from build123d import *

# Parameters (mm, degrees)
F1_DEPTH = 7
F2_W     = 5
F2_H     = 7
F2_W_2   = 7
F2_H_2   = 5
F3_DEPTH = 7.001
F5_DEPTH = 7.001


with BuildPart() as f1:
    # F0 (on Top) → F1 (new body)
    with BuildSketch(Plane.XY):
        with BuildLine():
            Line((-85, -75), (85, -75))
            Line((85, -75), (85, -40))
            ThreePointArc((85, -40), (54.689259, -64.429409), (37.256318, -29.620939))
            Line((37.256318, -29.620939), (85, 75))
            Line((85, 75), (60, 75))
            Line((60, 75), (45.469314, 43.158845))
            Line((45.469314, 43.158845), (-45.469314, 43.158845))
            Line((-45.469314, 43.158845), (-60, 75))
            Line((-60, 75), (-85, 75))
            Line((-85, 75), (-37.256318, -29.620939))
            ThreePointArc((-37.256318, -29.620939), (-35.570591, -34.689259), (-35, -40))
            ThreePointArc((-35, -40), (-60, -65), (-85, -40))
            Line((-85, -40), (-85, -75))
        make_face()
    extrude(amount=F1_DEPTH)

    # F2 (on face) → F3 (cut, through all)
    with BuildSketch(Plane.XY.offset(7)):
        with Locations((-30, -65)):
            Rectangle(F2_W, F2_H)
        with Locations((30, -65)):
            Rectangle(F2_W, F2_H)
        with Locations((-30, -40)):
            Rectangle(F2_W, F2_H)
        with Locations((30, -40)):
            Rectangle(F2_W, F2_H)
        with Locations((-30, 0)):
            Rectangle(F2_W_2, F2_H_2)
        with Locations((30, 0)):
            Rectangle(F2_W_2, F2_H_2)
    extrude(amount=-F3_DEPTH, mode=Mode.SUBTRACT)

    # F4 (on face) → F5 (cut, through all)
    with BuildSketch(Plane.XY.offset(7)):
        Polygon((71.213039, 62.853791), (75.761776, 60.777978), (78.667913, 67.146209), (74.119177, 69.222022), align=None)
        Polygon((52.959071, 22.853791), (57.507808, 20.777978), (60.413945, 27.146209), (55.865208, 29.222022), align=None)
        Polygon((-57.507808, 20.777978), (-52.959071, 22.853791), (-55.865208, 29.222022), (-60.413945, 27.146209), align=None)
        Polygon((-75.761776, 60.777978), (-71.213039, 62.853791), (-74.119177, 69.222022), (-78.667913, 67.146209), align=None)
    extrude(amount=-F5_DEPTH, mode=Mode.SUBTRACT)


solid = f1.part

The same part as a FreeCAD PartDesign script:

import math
import FreeCAD as App
import Part
import Sketcher
from FreeCAD import Vector
Q = App.Units.Quantity

doc = App.newDocument("Part")
body = doc.addObject("PartDesign::Body", "Body")

# Sketch on XY plane
sketch1 = body.newObject("Sketcher::SketchObject", "Sketch")
sketch1.AttachmentSupport = (doc.getObject("XY_Plane"), [""])
sketch1.MapMode = "FlatFace"
sketch1.addGeometry([
    Part.LineSegment(Vector(-85, -75, 0), Vector(85, -75, 0)),  # 0
    Part.LineSegment(Vector(85, -75, 0), Vector(85, -40, 0)),  # 1
    Part.ArcOfCircle(Part.Circle(Vector(60, -40, 0), Vector(0, 0, 1), 25), math.radians(155.470453), math.radians(360)),  # 2
    Part.LineSegment(Vector(37.256318, -29.620939, 0), Vector(85, 75, 0)),  # 3
    Part.LineSegment(Vector(85, 75, 0), Vector(60, 75, 0)),  # 4
    Part.LineSegment(Vector(60, 75, 0), Vector(45.469314, 43.158845, 0)),  # 5
    Part.LineSegment(Vector(45.469314, 43.158845, 0), Vector(-45.469314, 43.158845, 0)),  # 6
    Part.LineSegment(Vector(-45.469314, 43.158845, 0), Vector(-60, 75, 0)),  # 7
    Part.LineSegment(Vector(-60, 75, 0), Vector(-85, 75, 0)),  # 8
    Part.LineSegment(Vector(-85, 75, 0), Vector(-37.256318, -29.620939, 0)),  # 9
    Part.ArcOfCircle(Part.Circle(Vector(-59.999996, -40, 0), Vector(0, 0, 1), 24.999996), math.radians(0), math.radians(24.529551)),  # 10
    Part.ArcOfCircle(Part.Circle(Vector(-60, -40, 0), Vector(0, 0, 1), 25), math.radians(180), math.radians(360)),  # 11
    Part.LineSegment(Vector(-85, -40, 0), Vector(-85, -75, 0)),  # 12
], False)
sketch1.addConstraint([
    Sketcher.Constraint("Coincident", 0, 2, 1, 1),
    Sketcher.Constraint("Tangent", 1, 2, 2, 2),
    Sketcher.Constraint("Tangent", 2, 1, 3, 1),
    Sketcher.Constraint("Coincident", 3, 2, 4, 1),
    Sketcher.Constraint("Coincident", 4, 2, 5, 1),
    Sketcher.Constraint("Coincident", 5, 2, 6, 1),
    Sketcher.Constraint("Coincident", 6, 2, 7, 1),
    Sketcher.Constraint("Coincident", 7, 2, 8, 1),
    Sketcher.Constraint("Coincident", 8, 2, 9, 1),
    Sketcher.Constraint("Tangent", 9, 2, 10, 2),
    Sketcher.Constraint("Tangent", 10, 1, 11, 2),
    Sketcher.Constraint("Tangent", 11, 1, 12, 1),
    Sketcher.Constraint("Coincident", 12, 2, 0, 1),
    Sketcher.Constraint("Horizontal", 0),
    Sketcher.Constraint("Vertical", 1),
    Sketcher.Constraint("Horizontal", 4),
    Sketcher.Constraint("Horizontal", 6),
    Sketcher.Constraint("Horizontal", 8),
    Sketcher.Constraint("Vertical", 12),
    Sketcher.Constraint("Equal", 2, 11),
    Sketcher.Constraint("Symmetric", 0, 2, 8, 2, -1, 1),
    Sketcher.Constraint("Symmetric", 3, 2, 12, 2, -1, 1),
    Sketcher.Constraint("Symmetric", 2, 3, 10, 3, -2),
    Sketcher.Constraint("Parallel", 3, 5),
    Sketcher.Constraint("Parallel", 7, 9),
    Sketcher.Constraint("Horizontal", 2, 1, 9, 2),
    Sketcher.Constraint("Horizontal", 1, 2, 10, 1),
    Sketcher.Constraint("Vertical", 2, 3, 4, 2),
    Sketcher.Constraint("Vertical", 11, 3, 7, 2),
    Sketcher.Constraint("Radius", 2, Q("25 mm")),
    Sketcher.Constraint("DistanceX", 0, 1, 0, 2, Q("170 mm")),
    Sketcher.Constraint("DistanceY", 1, 1, 1, 2, Q("35 mm")),
    Sketcher.Constraint("Distance", 3, Q("115 mm")),
    Sketcher.Constraint("Distance", 5, Q("35 mm")),
])
pad1 = body.newObject("PartDesign::Pad", "Pad")
pad1.Profile = sketch1
pad1.Length = 7

# Sketch on XY plane
sketch2 = body.newObject("Sketcher::SketchObject", "Sketch001")
sketch2.AttachmentSupport = (doc.getObject("XY_Plane"), [""])
sketch2.MapMode = "FlatFace"
sketch2.AttachmentOffset = App.Placement(Vector(0, 0, 7), App.Rotation())
sketch2.addGeometry([
    Part.LineSegment(Vector(-32.5, -61.5, 0), Vector(-32.5, -68.5, 0)),  # 0
    Part.LineSegment(Vector(-32.5, -68.5, 0), Vector(-27.5, -68.5, 0)),  # 1
    Part.LineSegment(Vector(-27.5, -68.5, 0), Vector(-27.5, -61.5, 0)),  # 2
    Part.LineSegment(Vector(-27.5, -61.5, 0), Vector(-32.5, -61.5, 0)),  # 3
    Part.LineSegment(Vector(27.5, -61.5, 0), Vector(27.5, -68.5, 0)),  # 4
    Part.LineSegment(Vector(27.5, -68.5, 0), Vector(32.5, -68.5, 0)),  # 5
    Part.LineSegment(Vector(32.5, -68.5, 0), Vector(32.5, -61.5, 0)),  # 6
    Part.LineSegment(Vector(32.5, -61.5, 0), Vector(27.5, -61.5, 0)),  # 7
    Part.LineSegment(Vector(-32.5, -36.5, 0), Vector(-32.5, -43.5, 0)),  # 8
    Part.LineSegment(Vector(-32.5, -43.5, 0), Vector(-27.5, -43.5, 0)),  # 9
    Part.LineSegment(Vector(-27.5, -43.5, 0), Vector(-27.5, -36.5, 0)),  # 10
    Part.LineSegment(Vector(-27.5, -36.5, 0), Vector(-32.5, -36.5, 0)),  # 11
    Part.LineSegment(Vector(27.5, -36.5, 0), Vector(27.5, -43.5, 0)),  # 12
    Part.LineSegment(Vector(27.5, -43.5, 0), Vector(32.5, -43.5, 0)),  # 13
    Part.LineSegment(Vector(32.5, -43.5, 0), Vector(32.5, -36.5, 0)),  # 14
    Part.LineSegment(Vector(32.5, -36.5, 0), Vector(27.5, -36.5, 0)),  # 15
    Part.LineSegment(Vector(-33.5, 2.5, 0), Vector(-33.5, -2.5, 0)),  # 16
    Part.LineSegment(Vector(-33.5, -2.5, 0), Vector(-26.5, -2.5, 0)),  # 17
    Part.LineSegment(Vector(-26.5, -2.5, 0), Vector(-26.5, 2.5, 0)),  # 18
    Part.LineSegment(Vector(-26.5, 2.5, 0), Vector(-33.5, 2.5, 0)),  # 19
    Part.LineSegment(Vector(26.5, 2.5, 0), Vector(26.5, -2.5, 0)),  # 20
    Part.LineSegment(Vector(26.5, -2.5, 0), Vector(33.5, -2.5, 0)),  # 21
    Part.LineSegment(Vector(33.5, -2.5, 0), Vector(33.5, 2.5, 0)),  # 22
    Part.LineSegment(Vector(33.5, 2.5, 0), Vector(26.5, 2.5, 0)),  # 23
], False)
sketch2.addConstraint([
    Sketcher.Constraint("Coincident", 0, 2, 1, 1),
    Sketcher.Constraint("Coincident", 1, 2, 2, 1),
    Sketcher.Constraint("Coincident", 2, 2, 3, 1),
    Sketcher.Constraint("Coincident", 3, 2, 0, 1),
    Sketcher.Constraint("Coincident", 4, 2, 5, 1),
    Sketcher.Constraint("Coincident", 5, 2, 6, 1),
    Sketcher.Constraint("Coincident", 6, 2, 7, 1),
    Sketcher.Constraint("Coincident", 7, 2, 4, 1),
    Sketcher.Constraint("Coincident", 8, 2, 9, 1),
    Sketcher.Constraint("Coincident", 9, 2, 10, 1),
    Sketcher.Constraint("Coincident", 10, 2, 11, 1),
    Sketcher.Constraint("Coincident", 11, 2, 8, 1),
    Sketcher.Constraint("Coincident", 12, 2, 13, 1),
    Sketcher.Constraint("Coincident", 13, 2, 14, 1),
    Sketcher.Constraint("Coincident", 14, 2, 15, 1),
    Sketcher.Constraint("Coincident", 15, 2, 12, 1),
    Sketcher.Constraint("Coincident", 16, 2, 17, 1),
    Sketcher.Constraint("Coincident", 17, 2, 18, 1),
    Sketcher.Constraint("Coincident", 18, 2, 19, 1),
    Sketcher.Constraint("Coincident", 19, 2, 16, 1),
    Sketcher.Constraint("Coincident", 20, 2, 21, 1),
    Sketcher.Constraint("Coincident", 21, 2, 22, 1),
    Sketcher.Constraint("Coincident", 22, 2, 23, 1),
    Sketcher.Constraint("Coincident", 23, 2, 20, 1),
    Sketcher.Constraint("Vertical", 0),
    Sketcher.Constraint("Horizontal", 1),
    Sketcher.Constraint("Vertical", 2),
    Sketcher.Constraint("Horizontal", 3),
    Sketcher.Constraint("Vertical", 4),
    Sketcher.Constraint("Horizontal", 5),
    Sketcher.Constraint("Vertical", 6),
    Sketcher.Constraint("Horizontal", 7),
    Sketcher.Constraint("Vertical", 8),
    Sketcher.Constraint("Horizontal", 9),
    Sketcher.Constraint("Vertical", 10),
    Sketcher.Constraint("Horizontal", 11),
    Sketcher.Constraint("Vertical", 12),
    Sketcher.Constraint("Horizontal", 13),
    Sketcher.Constraint("Vertical", 14),
    Sketcher.Constraint("Horizontal", 15),
    Sketcher.Constraint("Vertical", 16),
    Sketcher.Constraint("Horizontal", 17),
    Sketcher.Constraint("Vertical", 18),
    Sketcher.Constraint("Horizontal", 19),
    Sketcher.Constraint("Vertical", 20),
    Sketcher.Constraint("Horizontal", 21),
    Sketcher.Constraint("Vertical", 22),
    Sketcher.Constraint("Horizontal", 23),
    Sketcher.Constraint("Symmetric", 18, 2, 20, 2, -1, 1),
    Sketcher.Constraint("Symmetric", 16, 2, 22, 2, -1, 1),
    Sketcher.Constraint("Symmetric", 1, 2, 4, 2, -2),
    Sketcher.Constraint("Symmetric", 3, 2, 6, 2, -2),
    Sketcher.Constraint("Symmetric", 9, 2, 12, 2, -2),
    Sketcher.Constraint("Symmetric", 11, 2, 14, 2, -2),
    Sketcher.Constraint("Horizontal", 17, 2, 20, 2),
    Sketcher.Constraint("Vertical", 3, 2, 8, 2),
    Sketcher.Constraint("Vertical", 2, 2, 9, 2),
    Sketcher.Constraint("Equal", 23, 0),
    Sketcher.Constraint("Equal", 6, 8),
    Sketcher.Constraint("Equal", 15, 16),
    Sketcher.Constraint("DistanceX", 1, 1, 1, 2, Q("5 mm")),
    Sketcher.Constraint("DistanceX", 17, 1, 17, 2, Q("7 mm")),
    Sketcher.Constraint("DistanceX", 1, 2, 4, 2, Q("55 mm")),
    Sketcher.Constraint("DistanceY", 3, 2, 8, 2, Q("18 mm")),
    Sketcher.Constraint("DistanceX", 16, 2, 11, 2, Q("1 mm")),
    Sketcher.Constraint("DistanceY", 11, 2, 16, 2, Q("34 mm")),
])
pocket1 = body.newObject("PartDesign::Pocket", "Pocket")
pocket1.Profile = sketch2
pocket1.Type = "ThroughAll"

# Sketch on XY plane
sketch3 = body.newObject("Sketcher::SketchObject", "Sketch002")
sketch3.AttachmentSupport = (doc.getObject("XY_Plane"), [""])
sketch3.MapMode = "FlatFace"
sketch3.AttachmentOffset = App.Placement(Vector(0, 0, 7), App.Rotation())
sketch3.addGeometry([
    Part.LineSegment(Vector(71.213039, 62.853791, 0), Vector(75.761776, 60.777978, 0)),  # 0
    Part.LineSegment(Vector(75.761776, 60.777978, 0), Vector(78.667913, 67.146209, 0)),  # 1
    Part.LineSegment(Vector(78.667913, 67.146209, 0), Vector(74.119177, 69.222022, 0)),  # 2
    Part.LineSegment(Vector(74.119177, 69.222022, 0), Vector(71.213039, 62.853791, 0)),  # 3
    Part.LineSegment(Vector(52.959071, 22.853791, 0), Vector(57.507808, 20.777978, 0)),  # 4
    Part.LineSegment(Vector(57.507808, 20.777978, 0), Vector(60.413945, 27.146209, 0)),  # 5
    Part.LineSegment(Vector(60.413945, 27.146209, 0), Vector(55.865208, 29.222022, 0)),  # 6
    Part.LineSegment(Vector(55.865208, 29.222022, 0), Vector(52.959071, 22.853791, 0)),  # 7
    Part.LineSegment(Vector(-57.507808, 20.777978, 0), Vector(-52.959071, 22.853791, 0)),  # 8
    Part.LineSegment(Vector(-52.959071, 22.853791, 0), Vector(-55.865208, 29.222022, 0)),  # 9
    Part.LineSegment(Vector(-55.865208, 29.222022, 0), Vector(-60.413945, 27.146209, 0)),  # 10
    Part.LineSegment(Vector(-60.413945, 27.146209, 0), Vector(-57.507808, 20.777978, 0)),  # 11
    Part.LineSegment(Vector(-75.761776, 60.777978, 0), Vector(-71.213039, 62.853791, 0)),  # 12
    Part.LineSegment(Vector(-71.213039, 62.853791, 0), Vector(-74.119177, 69.222022, 0)),  # 13
    Part.LineSegment(Vector(-74.119177, 69.222022, 0), Vector(-78.667913, 67.146209, 0)),  # 14
    Part.LineSegment(Vector(-78.667913, 67.146209, 0), Vector(-75.761776, 60.777978, 0)),  # 15
], False)
sketch3.addConstraint([
    Sketcher.Constraint("Coincident", 0, 2, 1, 1),
    Sketcher.Constraint("Coincident", 1, 2, 2, 1),
    Sketcher.Constraint("Coincident", 2, 2, 3, 1),
    Sketcher.Constraint("Coincident", 3, 2, 0, 1),
    Sketcher.Constraint("Coincident", 4, 2, 5, 1),
    Sketcher.Constraint("Coincident", 5, 2, 6, 1),
    Sketcher.Constraint("Coincident", 6, 2, 7, 1),
    Sketcher.Constraint("Coincident", 7, 2, 4, 1),
    Sketcher.Constraint("Coincident", 8, 2, 9, 1),
    Sketcher.Constraint("Coincident", 9, 2, 10, 1),
    Sketcher.Constraint("Coincident", 10, 2, 11, 1),
    Sketcher.Constraint("Coincident", 11, 2, 8, 1),
    Sketcher.Constraint("Coincident", 12, 2, 13, 1),
    Sketcher.Constraint("Coincident", 13, 2, 14, 1),
    Sketcher.Constraint("Coincident", 14, 2, 15, 1),
    Sketcher.Constraint("Coincident", 15, 2, 12, 1),
    Sketcher.Constraint("Symmetric", 7, 2, 8, 2, -2),
    Sketcher.Constraint("Symmetric", 6, 2, 9, 2, -2),
    Sketcher.Constraint("Symmetric", 5, 2, 10, 2, -2),
    Sketcher.Constraint("Symmetric", 4, 2, 11, 2, -2),
    Sketcher.Constraint("Symmetric", 3, 2, 12, 2, -2),
    Sketcher.Constraint("Symmetric", 2, 2, 13, 2, -2),
    Sketcher.Constraint("Symmetric", 1, 2, 14, 2, -2),
    Sketcher.Constraint("Symmetric", 0, 2, 15, 2, -2),
    Sketcher.Constraint("Perpendicular", 0, 1),
    Sketcher.Constraint("Perpendicular", 1, 2),
    Sketcher.Constraint("Perpendicular", 2, 3),
    Sketcher.Constraint("Perpendicular", 3, 4),
    Sketcher.Constraint("Perpendicular", 4, 5),
    Sketcher.Constraint("Perpendicular", 5, 6),
    Sketcher.Constraint("Perpendicular", 6, 7),
    Sketcher.Constraint("Equal", 2, 4),
    Sketcher.Constraint("Equal", 3, 5),
    Sketcher.Constraint("Distance", 0, Q("5.000001 mm")),
    Sketcher.Constraint("Distance", 1, Q("7 mm")),
    Sketcher.Constraint("DistanceY", 4, 2, 0, 2, Q("40 mm")),
    Sketcher.Constraint("DistanceX", 2, 2, 0, 2, Q("1.642599 mm")),
    Sketcher.Constraint("DistanceY", -1, 1, 1, 2, Q("67.146209 mm")),
    Sketcher.Constraint("DistanceX", -1, 1, 3, 2, Q("71.213039 mm")),
    Sketcher.Constraint("DistanceX", -1, 1, 6, 2, Q("55.865208 mm")),
])
pocket2 = body.newObject("PartDesign::Pocket", "Pocket001")
pocket2.Profile = sketch3
pocket2.Type = "ThroughAll"

doc.recompute()
